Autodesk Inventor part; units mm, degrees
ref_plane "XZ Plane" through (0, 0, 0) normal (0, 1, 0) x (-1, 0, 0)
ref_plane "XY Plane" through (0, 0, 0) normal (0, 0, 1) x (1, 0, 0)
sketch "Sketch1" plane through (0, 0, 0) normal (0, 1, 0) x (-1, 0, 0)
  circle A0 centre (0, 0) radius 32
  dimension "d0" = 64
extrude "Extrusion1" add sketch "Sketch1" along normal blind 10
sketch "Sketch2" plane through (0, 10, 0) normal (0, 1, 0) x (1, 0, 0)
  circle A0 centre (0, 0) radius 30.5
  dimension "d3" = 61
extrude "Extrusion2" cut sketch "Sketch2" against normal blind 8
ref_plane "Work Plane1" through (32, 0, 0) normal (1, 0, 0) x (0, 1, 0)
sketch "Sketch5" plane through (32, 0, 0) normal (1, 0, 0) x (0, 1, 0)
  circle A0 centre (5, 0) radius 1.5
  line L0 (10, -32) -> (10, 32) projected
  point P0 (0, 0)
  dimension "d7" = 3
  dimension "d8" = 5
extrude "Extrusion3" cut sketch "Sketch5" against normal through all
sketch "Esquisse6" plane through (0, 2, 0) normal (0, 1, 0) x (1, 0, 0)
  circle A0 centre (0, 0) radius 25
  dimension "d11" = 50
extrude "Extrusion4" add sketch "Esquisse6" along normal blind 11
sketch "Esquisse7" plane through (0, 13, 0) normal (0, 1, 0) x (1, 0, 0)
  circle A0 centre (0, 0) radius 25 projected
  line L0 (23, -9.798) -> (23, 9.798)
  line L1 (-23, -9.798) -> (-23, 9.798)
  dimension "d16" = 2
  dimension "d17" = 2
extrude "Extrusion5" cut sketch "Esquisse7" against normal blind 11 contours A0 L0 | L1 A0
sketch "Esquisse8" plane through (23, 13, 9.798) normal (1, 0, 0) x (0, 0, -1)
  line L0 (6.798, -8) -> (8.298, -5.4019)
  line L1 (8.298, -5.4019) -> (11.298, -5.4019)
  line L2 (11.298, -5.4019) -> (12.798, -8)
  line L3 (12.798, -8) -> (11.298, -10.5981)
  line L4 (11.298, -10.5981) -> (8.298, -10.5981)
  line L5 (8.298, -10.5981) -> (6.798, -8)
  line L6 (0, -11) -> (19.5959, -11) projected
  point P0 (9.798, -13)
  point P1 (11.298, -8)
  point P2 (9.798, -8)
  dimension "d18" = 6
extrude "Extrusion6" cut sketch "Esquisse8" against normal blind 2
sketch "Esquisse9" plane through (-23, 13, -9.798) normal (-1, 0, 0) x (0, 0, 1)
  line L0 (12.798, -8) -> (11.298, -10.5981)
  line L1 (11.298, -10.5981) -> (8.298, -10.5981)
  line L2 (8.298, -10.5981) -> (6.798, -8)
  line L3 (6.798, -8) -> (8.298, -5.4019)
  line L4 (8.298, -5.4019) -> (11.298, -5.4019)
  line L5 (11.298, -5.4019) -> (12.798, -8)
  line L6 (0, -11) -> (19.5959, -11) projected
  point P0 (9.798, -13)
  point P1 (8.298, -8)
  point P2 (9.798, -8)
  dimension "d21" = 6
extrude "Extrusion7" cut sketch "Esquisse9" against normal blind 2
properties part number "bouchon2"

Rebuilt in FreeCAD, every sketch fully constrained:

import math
import FreeCAD as App
import Part
import Sketcher
Q = App.Units.Quantity

doc = App.newDocument("Part")
body = doc.addObject("PartDesign::Body", "Body")

sketch1 = body.newObject("Sketcher::SketchObject", "Sketch")
sketch1.AttachmentSupport = (doc.getObject("XZ_Plane"), [""])
sketch1.MapMode = "FlatFace"
sketch1.addGeometry(Part.Circle(App.Vector(0, 0, 0), App.Vector(0, 0, 1), 32), False)
sketch1.addConstraint([
    Sketcher.Constraint("Coincident", 0, 3, -1, 1),
    Sketcher.Constraint("Diameter", 0, 64.0),
])
pad1 = body.newObject("PartDesign::Pad", "Pad")
pad1.Profile = sketch1
pad1.Length = 10
pad1.Reversed = True

sketch2 = body.newObject("Sketcher::SketchObject", "Sketch001")
sketch2.AttachmentSupport = (doc.getObject("XZ_Plane"), [""])
sketch2.MapMode = "FlatFace"
sketch2.AttachmentOffset = App.Placement(App.Vector(0, 0, -10), App.Rotation())
sketch2.addGeometry(Part.Circle(App.Vector(0, 0, 0), App.Vector(0, 0, 1), 30), False)
sketch2.addConstraint([
    Sketcher.Constraint("Coincident", 0, 3, -1, 1),
    Sketcher.Constraint("Diameter", 0, 61.0),
])
pocket1 = body.newObject("PartDesign::Pocket", "Pocket")
pocket1.Profile = sketch2
pocket1.Length = 8
pocket1.Reversed = True

sketch3 = body.newObject("Sketcher::SketchObject", "Sketch002")
sketch3.AttachmentSupport = (doc.getObject("YZ_Plane"), [""])
sketch3.MapMode = "FlatFace"
sketch3.AttachmentOffset = App.Placement(App.Vector(0, 0, 32), App.Rotation())
sketch3.addGeometry(Part.Circle(App.Vector(5, 0, 0), App.Vector(0, 0, 1), 1.5), False)
sketch3.addConstraint([
    Sketcher.Constraint("PointOnObject", 0, 3, -1),
    Sketcher.Constraint("Diameter", 0, 3.0),
    Sketcher.Constraint("DistanceX", -1, 1, 0, 3, 5.0),
])
pocket2 = body.newObject("PartDesign::Pocket", "Pocket001")
pocket2.Profile = sketch3
pocket2.Type = "ThroughAll"

sketch4 = body.newObject("Sketcher::SketchObject", "Sketch003")
sketch4.AttachmentSupport = (doc.getObject("XZ_Plane"), [""])
sketch4.MapMode = "FlatFace"
sketch4.AttachmentOffset = App.Placement(App.Vector(0, 0, -2), App.Rotation())
sketch4.addGeometry(Part.Circle(App.Vector(0, 0, 0), App.Vector(0, 0, 1), 25), False)
sketch4.addConstraint([
    Sketcher.Constraint("Coincident", 0, 3, -1, 1),
    Sketcher.Constraint("Diameter", 0, 50.0),
])
pad2 = body.newObject("PartDesign::Pad", "Pad001")
pad2.Profile = sketch4
pad2.Length = 11
pad2.Reversed = True

sketch5 = body.newObject("Sketcher::SketchObject", "Sketch004")
sketch5.AttachmentSupport = (doc.getObject("XZ_Plane"), [""])
sketch5.MapMode = "FlatFace"
sketch5.AttachmentOffset = App.Placement(App.Vector(0, 0, -13), App.Rotation())
sketch5.addGeometry([
    Part.ArcOfCircle(Part.Circle(App.Vector(0, 0, 0), App.Vector(0, 0, 1), 25), math.radians(-23), math.radians(23)),
    Part.LineSegment(App.Vector(23, 10, 0), App.Vector(23, -10, 0)),
    Part.LineSegment(App.Vector(-23, 10, 0), App.Vector(-23, -10, 0)),
    Part.ArcOfCircle(Part.Circle(App.Vector(0, 0, 0), App.Vector(0, 0, 1), 25), math.radians(157), math.radians(203)),
], False)
sketch5.addConstraint([
    Sketcher.Constraint("Coincident", 0, 1, 1, 2),
    Sketcher.Constraint("Coincident", 1, 1, 0, 2),
    Sketcher.Constraint("Coincident", 2, 1, 3, 1),
    Sketcher.Constraint("Coincident", 3, 2, 2, 2),
    Sketcher.Constraint("Vertical", 1),
    Sketcher.Constraint("Vertical", 2),
    Sketcher.Constraint("Coincident", 0, 3, -1, 1),
    Sketcher.Constraint("Coincident", 3, 3, -1, 1),
    Sketcher.Constraint("Equal", 0, 3),
    Sketcher.Constraint("Horizontal", 1, 1, 2, 1),
    Sketcher.Constraint("Radius", 0, 25.0),
    Sketcher.Constraint("DistanceX", -1, 1, 0, 1, 23.0),
])
pocket3 = body.newObject("PartDesign::Pocket", "Pocket002")
pocket3.Profile = sketch5
pocket3.Length = 11
pocket3.Reversed = True

sketch6 = body.newObject("Sketcher::SketchObject", "Sketch005")
sketch6.AttachmentSupport = (doc.getObject("YZ_Plane"), [""])
sketch6.MapMode = "FlatFace"
sketch6.AttachmentOffset = App.Placement(App.Vector(0, 0, 23), App.Rotation())
sketch6.addGeometry([
    Part.LineSegment(App.Vector(7.6, 1.5, 0), App.Vector(5, 3, 0)),
    Part.LineSegment(App.Vector(5, 3, 0), App.Vector(2.4, 1.5, 0)),
    Part.LineSegment(App.Vector(2.4, 1.5, 0), App.Vector(2.4, -1.5, 0)),
    Part.LineSegment(App.Vector(2.4, -1.5, 0), App.Vector(5, -3, 0)),
    Part.LineSegment(App.Vector(5, -3, 0), App.Vector(7.6, -1.5, 0)),
    Part.LineSegment(App.Vector(7.6, -1.5, 0), App.Vector(7.6, 1.5, 0)),
], False)
sketch6.addConstraint([
    Sketcher.Constraint("Coincident", 0, 2, 1, 1),
    Sketcher.Constraint("Coincident", 1, 2, 2, 1),
    Sketcher.Constraint("Coincident", 2, 2, 3, 1),
    Sketcher.Constraint("Coincident", 3, 2, 4, 1),
    Sketcher.Constraint("Coincident", 4, 2, 5, 1),
    Sketcher.Constraint("Coincident", 5, 2, 0, 1),
    Sketcher.Constraint("Vertical", 2),
    Sketcher.Constraint("Vertical", 5),
    Sketcher.Constraint("Symmetric", 0, 2, 3, 2, -1),
    Sketcher.Constraint("Parallel", 0, 3),
    Sketcher.Constraint("Parallel", 1, 4),
    Sketcher.Constraint("Horizontal", 2, 2, 4, 2),
    Sketcher.Constraint("Horizontal", 1, 2, 5, 2),
    Sketcher.Constraint("DistanceY", 3, 2, 0, 2, 6.0),
    Sketcher.Constraint("DistanceY", 2, 2, 2, 1, 3.0),
    Sketcher.Constraint("Angle", 0, Q("150.0002 deg")),
    Sketcher.Constraint("DistanceX", -1, 1, 0, 2, 5.0),
])
pocket4 = body.newObject("PartDesign::Pocket", "Pocket003")
pocket4.Profile = sketch6
pocket4.Length = 2

sketch7 = body.newObject("Sketcher::SketchObject", "Sketch006")
sketch7.AttachmentSupport = (doc.getObject("YZ_Plane"), [""])
sketch7.MapMode = "FlatFace"
sketch7.AttachmentOffset = App.Placement(App.Vector(0, 0, -23), App.Rotation())
sketch7.addGeometry([
    Part.LineSegment(App.Vector(2.4, 1.5, 0), App.Vector(5, 3, 0)),
    Part.LineSegment(App.Vector(5, 3, 0), App.Vector(7.6, 1.5, 0)),
    Part.LineSegment(App.Vector(7.6, 1.5, 0), App.Vector(7.6, -1.5, 0)),
    Part.LineSegment(App.Vector(7.6, -1.5, 0), App.Vector(5, -3, 0)),
    Part.LineSegment(App.Vector(5, -3, 0), App.Vector(2.4, -1.5, 0)),
    Part.LineSegment(App.Vector(2.4, -1.5, 0), App.Vector(2.4, 1.5, 0)),
], False)
sketch7.addConstraint([
    Sketcher.Constraint("Coincident", 0, 2, 1, 1),
    Sketcher.Constraint("Coincident", 1, 2, 2, 1),
    Sketcher.Constraint("Coincident", 2, 2, 3, 1),
    Sketcher.Constraint("Coincident", 3, 2, 4, 1),
    Sketcher.Constraint("Coincident", 4, 2, 5, 1),
    Sketcher.Constraint("Coincident", 5, 2, 0, 1),
    Sketcher.Constraint("Vertical", 2),
    Sketcher.Constraint("Vertical", 5),
    Sketcher.Constraint("Symmetric", 0, 2, 3, 2, -1),
    Sketcher.Constraint("Parallel", 0, 3),
    Sketcher.Constraint("Parallel", 1, 4),
    Sketcher.Constraint("Horizontal", 2, 2, 4, 2),
    Sketcher.Constraint("Horizontal", 1, 2, 5, 2),
    Sketcher.Constraint("DistanceY", 3, 2, 0, 2, 6.0),
    Sketcher.Constraint("DistanceY", 2, 2, 2, 1, 3.0),
    Sketcher.Constraint("Angle", 0, Q("29.9998 deg")),
    Sketcher.Constraint("DistanceX", -1, 1, 0, 2, 5.0),
])
pocket5 = body.newObject("PartDesign::Pocket", "Pocket004")
pocket5.Profile = sketch7
pocket5.Length = 2
pocket5.Reversed = True

doc.recompute()
